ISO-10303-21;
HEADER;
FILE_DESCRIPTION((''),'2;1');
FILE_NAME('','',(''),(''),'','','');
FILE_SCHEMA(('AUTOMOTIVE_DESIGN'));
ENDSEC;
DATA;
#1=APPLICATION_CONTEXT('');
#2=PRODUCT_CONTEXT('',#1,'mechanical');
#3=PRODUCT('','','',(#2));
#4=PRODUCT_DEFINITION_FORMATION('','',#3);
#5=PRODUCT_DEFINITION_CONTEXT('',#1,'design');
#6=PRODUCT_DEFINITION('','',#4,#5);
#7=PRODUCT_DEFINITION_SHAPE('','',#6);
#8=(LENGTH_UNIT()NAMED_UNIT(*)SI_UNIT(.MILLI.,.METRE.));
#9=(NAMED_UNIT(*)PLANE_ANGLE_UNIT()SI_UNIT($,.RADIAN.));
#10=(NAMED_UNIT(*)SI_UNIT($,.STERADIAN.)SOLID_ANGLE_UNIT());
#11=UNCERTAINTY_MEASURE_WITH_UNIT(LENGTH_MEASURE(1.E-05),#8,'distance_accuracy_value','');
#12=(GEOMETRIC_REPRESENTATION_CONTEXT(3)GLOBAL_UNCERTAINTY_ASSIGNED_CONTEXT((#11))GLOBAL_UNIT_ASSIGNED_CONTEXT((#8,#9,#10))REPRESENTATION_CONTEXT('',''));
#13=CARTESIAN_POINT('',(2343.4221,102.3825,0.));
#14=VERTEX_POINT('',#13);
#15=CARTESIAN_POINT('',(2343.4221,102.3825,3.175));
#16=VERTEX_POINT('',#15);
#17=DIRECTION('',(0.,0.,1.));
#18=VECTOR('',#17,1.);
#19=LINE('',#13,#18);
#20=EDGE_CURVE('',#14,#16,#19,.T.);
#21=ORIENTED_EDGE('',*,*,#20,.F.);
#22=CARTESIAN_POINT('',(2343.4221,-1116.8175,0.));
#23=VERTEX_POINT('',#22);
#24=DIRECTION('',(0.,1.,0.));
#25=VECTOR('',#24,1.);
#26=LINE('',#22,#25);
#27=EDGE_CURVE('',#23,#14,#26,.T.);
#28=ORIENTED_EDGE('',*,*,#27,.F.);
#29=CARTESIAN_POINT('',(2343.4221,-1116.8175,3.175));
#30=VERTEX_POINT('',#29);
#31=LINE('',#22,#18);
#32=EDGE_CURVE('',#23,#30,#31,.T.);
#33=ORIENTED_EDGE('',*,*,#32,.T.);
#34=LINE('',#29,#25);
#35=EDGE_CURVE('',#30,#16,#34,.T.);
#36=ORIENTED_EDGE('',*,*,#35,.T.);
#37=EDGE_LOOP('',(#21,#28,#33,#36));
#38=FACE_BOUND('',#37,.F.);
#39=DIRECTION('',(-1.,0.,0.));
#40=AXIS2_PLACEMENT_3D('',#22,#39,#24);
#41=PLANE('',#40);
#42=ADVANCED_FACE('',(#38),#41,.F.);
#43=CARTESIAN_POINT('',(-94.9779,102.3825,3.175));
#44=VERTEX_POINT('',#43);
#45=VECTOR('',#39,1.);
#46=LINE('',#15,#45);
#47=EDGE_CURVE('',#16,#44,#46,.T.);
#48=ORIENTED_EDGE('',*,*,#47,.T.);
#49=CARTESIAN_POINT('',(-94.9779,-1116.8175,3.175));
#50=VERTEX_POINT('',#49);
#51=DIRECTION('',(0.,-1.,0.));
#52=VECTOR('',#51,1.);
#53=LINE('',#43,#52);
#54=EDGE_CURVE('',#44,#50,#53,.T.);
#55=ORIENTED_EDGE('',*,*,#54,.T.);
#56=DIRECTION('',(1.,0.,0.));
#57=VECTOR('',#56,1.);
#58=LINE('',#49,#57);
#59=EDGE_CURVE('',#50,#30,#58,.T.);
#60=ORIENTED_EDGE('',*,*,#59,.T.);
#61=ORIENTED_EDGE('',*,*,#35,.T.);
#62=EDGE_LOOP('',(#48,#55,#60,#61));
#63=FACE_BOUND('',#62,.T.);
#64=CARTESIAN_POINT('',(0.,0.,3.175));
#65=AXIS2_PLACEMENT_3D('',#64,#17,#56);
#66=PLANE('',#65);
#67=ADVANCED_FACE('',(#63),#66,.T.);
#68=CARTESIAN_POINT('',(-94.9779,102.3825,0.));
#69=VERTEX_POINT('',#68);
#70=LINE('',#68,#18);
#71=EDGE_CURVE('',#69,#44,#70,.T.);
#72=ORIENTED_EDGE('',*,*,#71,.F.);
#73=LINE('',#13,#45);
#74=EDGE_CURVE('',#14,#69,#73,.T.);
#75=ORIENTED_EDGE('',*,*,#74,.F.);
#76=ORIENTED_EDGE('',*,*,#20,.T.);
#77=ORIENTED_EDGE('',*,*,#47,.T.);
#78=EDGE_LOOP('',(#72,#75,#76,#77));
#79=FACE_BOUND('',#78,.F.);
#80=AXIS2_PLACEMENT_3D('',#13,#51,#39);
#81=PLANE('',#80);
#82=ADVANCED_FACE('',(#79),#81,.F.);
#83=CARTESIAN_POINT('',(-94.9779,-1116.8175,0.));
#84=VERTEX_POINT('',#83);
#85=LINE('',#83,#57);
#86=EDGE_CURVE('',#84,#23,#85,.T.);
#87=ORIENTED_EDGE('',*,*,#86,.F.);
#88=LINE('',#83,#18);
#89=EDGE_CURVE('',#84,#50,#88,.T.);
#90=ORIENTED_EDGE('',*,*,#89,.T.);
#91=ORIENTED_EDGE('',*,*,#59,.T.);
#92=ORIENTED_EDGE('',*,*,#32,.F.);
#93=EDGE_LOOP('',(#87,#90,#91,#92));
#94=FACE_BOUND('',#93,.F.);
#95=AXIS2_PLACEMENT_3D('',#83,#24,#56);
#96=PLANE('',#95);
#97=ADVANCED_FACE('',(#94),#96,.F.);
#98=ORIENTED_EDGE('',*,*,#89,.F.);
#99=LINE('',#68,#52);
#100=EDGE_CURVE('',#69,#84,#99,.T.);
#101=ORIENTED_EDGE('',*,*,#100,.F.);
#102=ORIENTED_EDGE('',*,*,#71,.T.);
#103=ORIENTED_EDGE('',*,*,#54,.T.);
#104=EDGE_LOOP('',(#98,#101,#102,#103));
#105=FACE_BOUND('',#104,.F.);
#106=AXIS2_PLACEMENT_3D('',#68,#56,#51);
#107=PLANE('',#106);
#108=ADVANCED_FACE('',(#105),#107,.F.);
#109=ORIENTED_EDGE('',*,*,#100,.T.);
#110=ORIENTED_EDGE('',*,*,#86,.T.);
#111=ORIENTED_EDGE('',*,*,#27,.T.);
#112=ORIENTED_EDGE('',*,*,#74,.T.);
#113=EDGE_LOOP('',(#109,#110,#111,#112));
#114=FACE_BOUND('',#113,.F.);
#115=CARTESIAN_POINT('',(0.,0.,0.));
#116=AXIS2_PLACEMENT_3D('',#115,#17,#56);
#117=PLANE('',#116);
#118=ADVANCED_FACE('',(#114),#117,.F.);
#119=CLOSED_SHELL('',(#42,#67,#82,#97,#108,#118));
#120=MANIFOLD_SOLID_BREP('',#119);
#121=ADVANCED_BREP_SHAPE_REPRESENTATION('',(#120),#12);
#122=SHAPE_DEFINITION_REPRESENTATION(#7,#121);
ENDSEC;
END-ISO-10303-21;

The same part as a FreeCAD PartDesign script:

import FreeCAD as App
import Part
import Sketcher

V = App.Vector
Q = App.Units.Quantity


def add_polygon(sketch, points):
    """Adds a closed chain of lines whose ends are joined by coincident constraints."""
    first, n = sketch.GeometryCount, len(points)
    for a, b in zip(points, points[1:] + points[:1]):
        sketch.addGeometry(Part.LineSegment(App.Vector(*a, 0), App.Vector(*b, 0)), False)
    for i in range(n):
        sketch.addConstraint(Sketcher.Constraint("Coincident", first + i, 2, first + (i + 1) % n, 1))

doc = App.newDocument("Part")
params = doc.addObject("Spreadsheet::Sheet", "Params")
for row, (alias, value) in enumerate([
    ("sketch1_width", "96 in"),
    ("sketch1_height", "48 in"),
    ("pad1_length", "0.125 in"),
], start=1):
    params.set(f"A{row}", alias)
    params.set(f"B{row}", "=" + value)
    params.setAlias(f"B{row}", alias)

body = doc.addObject("PartDesign::Body", "Body")

sketch1 = doc.addObject("Sketcher::SketchObject", "Sketch")
body.addObject(sketch1)
sketch1.AttachmentSupport = (doc.XY_Plane, [""])
sketch1.MapMode = "FlatFace"
add_polygon(sketch1, [(-95, -1117), (2343, -1117), (2343, 102), (-95, 102)])
sketch1.addConstraint([
    Sketcher.Constraint("Horizontal", 0),
    Sketcher.Constraint("Vertical", 1),
    Sketcher.Constraint("Horizontal", 2),
    Sketcher.Constraint("Vertical", 3),
    Sketcher.Constraint("DistanceX", 0, 1, 0, 2, Q("96 in")),
    Sketcher.Constraint("DistanceY", 1, 1, 1, 2, Q("48 in")),
    Sketcher.Constraint("DistanceY", 0, 2, -1, 1, Q("43.9692 in")),
    Sketcher.Constraint("DistanceX", -1, 1, 0, 2, Q("92.2607087 in")),
])
sketch1.setExpression("Constraints[8]", "Params.sketch1_width")
sketch1.setExpression("Constraints[9]", "Params.sketch1_height")
pad1 = doc.addObject("PartDesign::Pad", "Pad")
body.addObject(pad1)
pad1.Profile = sketch1
pad1.setExpression("Length", "Params.pad1_length")

doc.recompute()
